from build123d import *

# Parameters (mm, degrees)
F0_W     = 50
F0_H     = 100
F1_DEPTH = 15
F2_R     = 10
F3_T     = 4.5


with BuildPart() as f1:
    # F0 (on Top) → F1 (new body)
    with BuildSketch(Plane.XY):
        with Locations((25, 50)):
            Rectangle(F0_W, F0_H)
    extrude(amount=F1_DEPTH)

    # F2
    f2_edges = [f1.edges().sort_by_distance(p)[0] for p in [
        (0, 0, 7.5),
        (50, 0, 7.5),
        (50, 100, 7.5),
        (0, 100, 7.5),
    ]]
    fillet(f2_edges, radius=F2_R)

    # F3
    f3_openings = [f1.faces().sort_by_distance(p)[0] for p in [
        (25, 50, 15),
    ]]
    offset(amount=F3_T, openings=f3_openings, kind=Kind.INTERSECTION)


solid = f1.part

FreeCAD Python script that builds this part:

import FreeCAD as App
import Part
import Sketcher


def edges_at(feature, points):
    """Names of the edges that pass closest to the given points."""
    edges = feature.Shape.Edges
    near = lambda p: min(range(len(edges)), key=lambda i: edges[i].distToShape(Part.Vertex(*p))[0])
    return sorted({f"Edge{near(p) + 1}" for p in points})


def faces_at(feature, points):
    """Names of the faces that lie closest to the given points."""
    faces = feature.Shape.Faces
    near = lambda p: min(range(len(faces)), key=lambda i: faces[i].distToShape(Part.Vertex(*p))[0])
    return sorted({f"Face{near(p) + 1}" for p in points})


def add_polygon(sketch, points):
    """Adds a closed chain of lines whose ends are joined by coincident constraints."""
    first, n = sketch.GeometryCount, len(points)
    for a, b in zip(points, points[1:] + points[:1]):
        sketch.addGeometry(Part.LineSegment(App.Vector(*a, 0), App.Vector(*b, 0)), False)
    for i in range(n):
        sketch.addConstraint(Sketcher.Constraint("Coincident", first + i, 2, first + (i + 1) % n, 1))

doc = App.newDocument("Part")
body = doc.addObject("PartDesign::Body", "Body")

sketch1 = body.newObject("Sketcher::SketchObject", "Sketch")
sketch1.AttachmentSupport = (doc.getObject("XY_Plane"), [""])
sketch1.MapMode = "FlatFace"
add_polygon(sketch1, [(0, 100), (0, 0), (50, 0), (50, 100)])
sketch1.addConstraint([
    Sketcher.Constraint("Vertical", 0),
    Sketcher.Constraint("Horizontal", 1),
    Sketcher.Constraint("Vertical", 2),
    Sketcher.Constraint("Horizontal", 3),
    Sketcher.Constraint("Coincident", 0, 2, -1, 1),
    Sketcher.Constraint("DistanceX", 1, 1, 1, 2, 50.0),
    Sketcher.Constraint("DistanceY", 0, 2, 0, 1, 100.0),
])
pad1 = body.newObject("PartDesign::Pad", "Pad")
pad1.Profile = sketch1
pad1.Length = 15
doc.recompute()

fillet = body.newObject("PartDesign::Fillet", "Fillet")
fillet.Base = (pad1, edges_at(pad1, [
    (0, 0, 7.5),
    (50, 0, 7.5),
    (50, 100, 7.5),
    (0, 100, 7.5),
]))
fillet.Radius = 10
doc.recompute()

thickness = body.newObject("PartDesign::Thickness", "Thickness")
thickness.Base = (fillet, faces_at(fillet, [(25, 50, 15)]))
thickness.Value = 4.5
thickness.Reversed = False
thickness.Join = "Intersection"

doc.recompute()
